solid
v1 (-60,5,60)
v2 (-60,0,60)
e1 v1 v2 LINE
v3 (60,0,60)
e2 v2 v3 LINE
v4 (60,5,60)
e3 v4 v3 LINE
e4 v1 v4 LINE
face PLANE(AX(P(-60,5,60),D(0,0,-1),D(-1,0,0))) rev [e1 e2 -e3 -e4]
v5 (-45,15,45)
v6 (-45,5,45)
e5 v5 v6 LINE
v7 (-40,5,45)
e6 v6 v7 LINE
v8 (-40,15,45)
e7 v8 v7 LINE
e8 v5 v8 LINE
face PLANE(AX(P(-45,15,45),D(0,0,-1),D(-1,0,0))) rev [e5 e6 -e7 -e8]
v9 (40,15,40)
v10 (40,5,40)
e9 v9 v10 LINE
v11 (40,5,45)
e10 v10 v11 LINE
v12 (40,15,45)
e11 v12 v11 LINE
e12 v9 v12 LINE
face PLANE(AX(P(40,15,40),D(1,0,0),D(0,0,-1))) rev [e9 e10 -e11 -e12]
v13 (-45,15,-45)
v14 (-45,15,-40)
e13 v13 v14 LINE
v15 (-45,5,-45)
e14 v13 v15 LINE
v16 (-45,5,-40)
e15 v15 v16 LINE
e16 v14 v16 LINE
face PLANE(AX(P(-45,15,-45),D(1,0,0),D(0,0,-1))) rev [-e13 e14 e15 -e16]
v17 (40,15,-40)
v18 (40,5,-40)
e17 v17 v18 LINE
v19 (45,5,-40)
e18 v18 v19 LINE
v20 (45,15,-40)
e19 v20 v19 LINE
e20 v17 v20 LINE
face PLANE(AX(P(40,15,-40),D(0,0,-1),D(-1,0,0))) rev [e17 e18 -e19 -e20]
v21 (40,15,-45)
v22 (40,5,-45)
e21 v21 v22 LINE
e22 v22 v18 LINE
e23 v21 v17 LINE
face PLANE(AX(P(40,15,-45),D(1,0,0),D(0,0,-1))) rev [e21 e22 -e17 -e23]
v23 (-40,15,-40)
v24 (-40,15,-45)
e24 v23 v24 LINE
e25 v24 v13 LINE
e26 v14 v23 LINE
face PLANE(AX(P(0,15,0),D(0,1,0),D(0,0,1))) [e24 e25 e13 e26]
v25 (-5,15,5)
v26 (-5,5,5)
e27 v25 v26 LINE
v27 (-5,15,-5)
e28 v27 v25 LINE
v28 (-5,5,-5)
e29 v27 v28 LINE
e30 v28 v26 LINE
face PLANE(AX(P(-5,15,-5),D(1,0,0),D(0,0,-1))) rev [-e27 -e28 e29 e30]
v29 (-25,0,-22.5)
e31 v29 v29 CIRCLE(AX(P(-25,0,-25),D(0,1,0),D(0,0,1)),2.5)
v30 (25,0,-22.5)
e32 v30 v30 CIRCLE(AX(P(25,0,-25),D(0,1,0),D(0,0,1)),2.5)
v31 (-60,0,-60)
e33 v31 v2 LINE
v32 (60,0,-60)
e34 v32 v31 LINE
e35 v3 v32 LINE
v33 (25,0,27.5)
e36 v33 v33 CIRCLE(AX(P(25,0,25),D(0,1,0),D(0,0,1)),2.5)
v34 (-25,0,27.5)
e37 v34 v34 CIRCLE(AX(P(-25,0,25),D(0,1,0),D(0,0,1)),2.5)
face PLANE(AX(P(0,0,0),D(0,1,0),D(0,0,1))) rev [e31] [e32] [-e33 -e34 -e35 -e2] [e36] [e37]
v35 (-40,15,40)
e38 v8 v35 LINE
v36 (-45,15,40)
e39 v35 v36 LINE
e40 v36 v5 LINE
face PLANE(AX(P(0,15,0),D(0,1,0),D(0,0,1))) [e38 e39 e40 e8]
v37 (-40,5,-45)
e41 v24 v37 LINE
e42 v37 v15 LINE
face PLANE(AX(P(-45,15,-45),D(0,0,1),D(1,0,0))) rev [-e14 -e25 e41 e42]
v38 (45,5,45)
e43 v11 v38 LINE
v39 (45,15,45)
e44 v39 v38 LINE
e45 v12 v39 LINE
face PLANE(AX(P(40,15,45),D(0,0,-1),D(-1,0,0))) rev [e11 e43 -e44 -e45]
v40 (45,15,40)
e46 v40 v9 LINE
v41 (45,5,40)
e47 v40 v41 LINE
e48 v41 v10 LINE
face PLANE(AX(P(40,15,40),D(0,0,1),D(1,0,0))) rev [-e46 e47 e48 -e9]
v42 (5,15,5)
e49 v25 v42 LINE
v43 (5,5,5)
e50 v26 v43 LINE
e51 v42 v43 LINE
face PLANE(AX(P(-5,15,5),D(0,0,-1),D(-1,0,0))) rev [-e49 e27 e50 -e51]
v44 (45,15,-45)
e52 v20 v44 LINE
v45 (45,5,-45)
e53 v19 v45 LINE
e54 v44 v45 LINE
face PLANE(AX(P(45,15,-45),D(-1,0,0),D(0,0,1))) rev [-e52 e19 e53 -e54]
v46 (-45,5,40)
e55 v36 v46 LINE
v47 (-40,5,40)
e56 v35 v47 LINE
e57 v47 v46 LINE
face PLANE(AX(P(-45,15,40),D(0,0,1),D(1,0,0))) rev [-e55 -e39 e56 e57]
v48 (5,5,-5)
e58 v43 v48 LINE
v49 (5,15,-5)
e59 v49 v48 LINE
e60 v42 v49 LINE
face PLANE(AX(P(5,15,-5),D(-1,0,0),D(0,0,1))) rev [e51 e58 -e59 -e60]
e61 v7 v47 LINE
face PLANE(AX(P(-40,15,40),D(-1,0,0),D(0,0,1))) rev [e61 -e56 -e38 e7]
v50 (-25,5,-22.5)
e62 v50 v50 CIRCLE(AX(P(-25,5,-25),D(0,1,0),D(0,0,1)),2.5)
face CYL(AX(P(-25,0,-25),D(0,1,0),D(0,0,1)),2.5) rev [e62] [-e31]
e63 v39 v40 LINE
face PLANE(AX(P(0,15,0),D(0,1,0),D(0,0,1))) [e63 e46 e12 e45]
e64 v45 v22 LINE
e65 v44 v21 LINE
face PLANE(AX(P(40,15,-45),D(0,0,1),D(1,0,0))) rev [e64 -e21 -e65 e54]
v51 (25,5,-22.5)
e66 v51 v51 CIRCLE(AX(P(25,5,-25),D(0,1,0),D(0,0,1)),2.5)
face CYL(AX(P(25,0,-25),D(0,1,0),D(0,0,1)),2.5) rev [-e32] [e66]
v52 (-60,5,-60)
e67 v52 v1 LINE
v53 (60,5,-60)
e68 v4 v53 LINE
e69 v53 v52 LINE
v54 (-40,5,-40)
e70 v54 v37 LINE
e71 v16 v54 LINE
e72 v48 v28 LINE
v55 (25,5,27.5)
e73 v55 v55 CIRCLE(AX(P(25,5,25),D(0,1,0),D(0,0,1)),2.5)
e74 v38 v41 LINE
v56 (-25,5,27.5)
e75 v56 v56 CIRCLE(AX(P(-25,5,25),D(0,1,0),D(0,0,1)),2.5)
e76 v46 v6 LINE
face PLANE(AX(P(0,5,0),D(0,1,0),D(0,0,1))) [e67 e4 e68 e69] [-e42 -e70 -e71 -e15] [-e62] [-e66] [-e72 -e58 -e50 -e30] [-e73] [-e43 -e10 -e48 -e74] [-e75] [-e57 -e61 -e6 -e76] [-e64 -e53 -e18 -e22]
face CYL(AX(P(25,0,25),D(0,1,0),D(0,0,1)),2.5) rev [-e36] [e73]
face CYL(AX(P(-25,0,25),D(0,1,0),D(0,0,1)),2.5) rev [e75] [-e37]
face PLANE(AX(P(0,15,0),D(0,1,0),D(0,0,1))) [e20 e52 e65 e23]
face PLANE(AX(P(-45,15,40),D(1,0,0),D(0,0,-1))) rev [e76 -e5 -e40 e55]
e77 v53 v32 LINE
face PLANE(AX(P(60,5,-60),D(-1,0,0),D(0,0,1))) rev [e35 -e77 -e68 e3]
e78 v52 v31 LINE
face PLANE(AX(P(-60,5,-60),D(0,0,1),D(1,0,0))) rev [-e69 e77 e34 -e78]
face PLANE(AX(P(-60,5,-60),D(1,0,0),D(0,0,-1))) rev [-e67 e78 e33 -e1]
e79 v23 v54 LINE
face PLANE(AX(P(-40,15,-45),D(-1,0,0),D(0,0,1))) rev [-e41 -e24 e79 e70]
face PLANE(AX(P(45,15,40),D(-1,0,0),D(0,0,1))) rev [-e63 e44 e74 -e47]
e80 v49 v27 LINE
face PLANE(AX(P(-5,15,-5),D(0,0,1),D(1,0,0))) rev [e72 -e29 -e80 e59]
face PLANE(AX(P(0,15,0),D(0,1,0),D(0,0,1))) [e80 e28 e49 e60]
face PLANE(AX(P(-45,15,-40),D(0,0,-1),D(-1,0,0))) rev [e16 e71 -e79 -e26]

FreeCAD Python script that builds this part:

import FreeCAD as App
import Part
import Sketcher
Q = App.Units.Quantity

doc = App.newDocument("Part")
body = doc.addObject("PartDesign::Body", "Body")

# Sketch on XZ plane
sketch1 = body.newObject("Sketcher::SketchObject", "Sketch")
sketch1.AttachmentSupport = (doc.getObject("XZ_Plane"), [""])
sketch1.MapMode = "FlatFace"
sketch1.addGeometry(Part.LineSegment(App.Vector(-60, -60, 0), App.Vector(-60, 60, 0)), False)
sketch1.addGeometry(Part.LineSegment(App.Vector(-60, 60, 0), App.Vector(60, 60, 0)), False)
sketch1.addGeometry(Part.LineSegment(App.Vector(60, 60, 0), App.Vector(60, -60, 0)), False)
sketch1.addGeometry(Part.LineSegment(App.Vector(60, -60, 0), App.Vector(-60, -60, 0)), False)
sketch1.addConstraint(Sketcher.Constraint("Coincident", 0, 2, 1, 1))
sketch1.addConstraint(Sketcher.Constraint("Coincident", 1, 2, 2, 1))
sketch1.addConstraint(Sketcher.Constraint("Coincident", 2, 2, 3, 1))
sketch1.addConstraint(Sketcher.Constraint("Coincident", 3, 2, 0, 1))
sketch1.addConstraint(Sketcher.Constraint("Vertical", 0))
sketch1.addConstraint(Sketcher.Constraint("Horizontal", 1))
sketch1.addConstraint(Sketcher.Constraint("Vertical", 2))
sketch1.addConstraint(Sketcher.Constraint("Horizontal", 3))
sketch1.addConstraint(Sketcher.Constraint("Symmetric", 0, 2, 2, 2, -1, 1))
sketch1.addConstraint(Sketcher.Constraint("Equal", 3, 0))
sketch1.addConstraint(Sketcher.Constraint("DistanceX", 1, 1, 1, 2, Q("120 mm")))
pad1 = body.newObject("PartDesign::Pad", "Pad")
pad1.Profile = sketch1
pad1.Length = 5
pad1.Reversed = True

# Sketch on XZ plane
sketch2 = body.newObject("Sketcher::SketchObject", "Sketch001")
sketch2.AttachmentSupport = (doc.getObject("XZ_Plane"), [""])
sketch2.MapMode = "FlatFace"
sketch2.AttachmentOffset = App.Placement(App.Vector(0, 0, -5), App.Rotation())
sketch2.addGeometry(Part.Circle(App.Vector(-25, -25, 0), App.Vector(0, 0, 1), 2.5), False)
sketch2.addConstraint(Sketcher.Constraint("Diameter", 0, Q("5 mm")))
sketch2.addConstraint(Sketcher.Constraint("DistanceX", 0, 3, -1, 1, Q("25 mm")))
sketch2.addConstraint(Sketcher.Constraint("DistanceY", 0, 3, -1, 1, Q("25 mm")))
pocket1 = body.newObject("PartDesign::Pocket", "Pocket")
pocket1.Profile = sketch2
pocket1.Length = 5
pocket1.Reversed = True

# Sketch on XZ plane
sketch3 = body.newObject("Sketcher::SketchObject", "Sketch002")
sketch3.AttachmentSupport = (doc.getObject("XZ_Plane"), [""])
sketch3.MapMode = "FlatFace"
sketch3.AttachmentOffset = App.Placement(App.Vector(0, 0, -5), App.Rotation())
sketch3.addGeometry(Part.Circle(App.Vector(25, -25, 0), App.Vector(0, 0, 1), 2.5), False)
sketch3.addConstraint(Sketcher.Constraint("Diameter", 0, Q("5 mm")))
sketch3.addConstraint(Sketcher.Constraint("DistanceX", -1, 1, 0, 3, Q("25 mm")))
sketch3.addConstraint(Sketcher.Constraint("DistanceY", 0, 3, -1, 1, Q("25 mm")))
pocket2 = body.newObject("PartDesign::Pocket", "Pocket001")
pocket2.Profile = sketch3
pocket2.Length = 5
pocket2.Reversed = True

# Sketch on XZ plane
sketch4 = body.newObject("Sketcher::SketchObject", "Sketch003")
sketch4.AttachmentSupport = (doc.getObject("XZ_Plane"), [""])
sketch4.MapMode = "FlatFace"
sketch4.AttachmentOffset = App.Placement(App.Vector(0, 0, -5), App.Rotation())
sketch4.addGeometry(Part.Circle(App.Vector(25, 25, 0), App.Vector(0, 0, 1), 2.5), False)
sketch4.addConstraint(Sketcher.Constraint("Diameter", 0, Q("5 mm")))
sketch4.addConstraint(Sketcher.Constraint("DistanceX", -1, 1, 0, 3, Q("25 mm")))
sketch4.addConstraint(Sketcher.Constraint("DistanceY", -1, 1, 0, 3, Q("25 mm")))
pocket3 = body.newObject("PartDesign::Pocket", "Pocket002")
pocket3.Profile = sketch4
pocket3.Length = 5
pocket3.Reversed = True

# Sketch on XZ plane
sketch5 = body.newObject("Sketcher::SketchObject", "Sketch004")
sketch5.AttachmentSupport = (doc.getObject("XZ_Plane"), [""])
sketch5.MapMode = "FlatFace"
sketch5.AttachmentOffset = App.Placement(App.Vector(0, 0, -5), App.Rotation())
sketch5.addGeometry(Part.Circle(App.Vector(-25, 25, 0), App.Vector(0, 0, 1), 2.5), False)
sketch5.addConstraint(Sketcher.Constraint("Diameter", 0, Q("5 mm")))
sketch5.addConstraint(Sketcher.Constraint("DistanceX", 0, 3, -1, 1, Q("25 mm")))
sketch5.addConstraint(Sketcher.Constraint("DistanceY", -1, 1, 0, 3, Q("25 mm")))
pocket4 = body.newObject("PartDesign::Pocket", "Pocket003")
pocket4.Profile = sketch5
pocket4.Length = 5
pocket4.Reversed = True

# Sketch on XZ plane
sketch6 = body.newObject("Sketcher::SketchObject", "Sketch005")
sketch6.AttachmentSupport = (doc.getObject("XZ_Plane"), [""])
sketch6.MapMode = "FlatFace"
sketch6.AttachmentOffset = App.Placement(App.Vector(0, 0, -5), App.Rotation())
sketch6.addGeometry(Part.LineSegment(App.Vector(-5, -5, 0), App.Vector(-5, 5, 0)), False)
sketch6.addGeometry(Part.LineSegment(App.Vector(-5, 5, 0), App.Vector(5, 5, 0)), False)
sketch6.addGeometry(Part.LineSegment(App.Vector(5, 5, 0), App.Vector(5, -5, 0)), False)
sketch6.addGeometry(Part.LineSegment(App.Vector(5, -5, 0), App.Vector(-5, -5, 0)), False)
sketch6.addConstraint(Sketcher.Constraint("Coincident", 0, 2, 1, 1))
sketch6.addConstraint(Sketcher.Constraint("Coincident", 1, 2, 2, 1))
sketch6.addConstraint(Sketcher.Constraint("Coincident", 2, 2, 3, 1))
sketch6.addConstraint(Sketcher.Constraint("Coincident", 3, 2, 0, 1))
sketch6.addConstraint(Sketcher.Constraint("Vertical", 0))
sketch6.addConstraint(Sketcher.Constraint("Horizontal", 1))
sketch6.addConstraint(Sketcher.Constraint("Vertical", 2))
sketch6.addConstraint(Sketcher.Constraint("Horizontal", 3))
sketch6.addConstraint(Sketcher.Constraint("Symmetric", 0, 2, 2, 2, -1, 1))
sketch6.addConstraint(Sketcher.Constraint("Equal", 3, 0))
sketch6.addConstraint(Sketcher.Constraint("DistanceX", 1, 1, 1, 2, Q("10 mm")))
pad2 = body.newObject("PartDesign::Pad", "Pad001")
pad2.Profile = sketch6
pad2.Length = 10
pad2.Reversed = True

# Sketch on XZ plane
sketch7 = body.newObject("Sketcher::SketchObject", "Sketch006")
sketch7.AttachmentSupport = (doc.getObject("XZ_Plane"), [""])
sketch7.MapMode = "FlatFace"
sketch7.AttachmentOffset = App.Placement(App.Vector(0, 0, -5), App.Rotation())
sketch7.addGeometry(Part.LineSegment(App.Vector(40, -45, 0), App.Vector(40, -40, 0)), False)
sketch7.addGeometry(Part.LineSegment(App.Vector(40, -40, 0), App.Vector(45, -40, 0)), False)
sketch7.addGeometry(Part.LineSegment(App.Vector(45, -40, 0), App.Vector(45, -45, 0)), False)
sketch7.addGeometry(Part.LineSegment(App.Vector(45, -45, 0), App.Vector(40, -45, 0)), False)
sketch7.addConstraint(Sketcher.Constraint("Coincident", 0, 2, 1, 1))
sketch7.addConstraint(Sketcher.Constraint("Coincident", 1, 2, 2, 1))
sketch7.addConstraint(Sketcher.Constraint("Coincident", 2, 2, 3, 1))
sketch7.addConstraint(Sketcher.Constraint("Coincident", 3, 2, 0, 1))
sketch7.addConstraint(Sketcher.Constraint("Vertical", 0))
sketch7.addConstraint(Sketcher.Constraint("Horizontal", 1))
sketch7.addConstraint(Sketcher.Constraint("Vertical", 2))
sketch7.addConstraint(Sketcher.Constraint("Horizontal", 3))
sketch7.addConstraint(Sketcher.Constraint("Equal", 3, 0))
sketch7.addConstraint(Sketcher.Constraint("DistanceX", 1, 1, 1, 2, Q("5 mm")))
sketch7.addConstraint(Sketcher.Constraint("DistanceX", -1, 1, 0, 2, Q("40 mm")))
sketch7.addConstraint(Sketcher.Constraint("DistanceY", 0, 2, -1, 1, Q("40 mm")))
pad3 = body.newObject("PartDesign::Pad", "Pad002")
pad3.Profile = sketch7
pad3.Length = 10
pad3.Reversed = True

# Sketch on XZ plane
sketch8 = body.newObject("Sketcher::SketchObject", "Sketch007")
sketch8.AttachmentSupport = (doc.getObject("XZ_Plane"), [""])
sketch8.MapMode = "FlatFace"
sketch8.AttachmentOffset = App.Placement(App.Vector(0, 0, -5), App.Rotation())
sketch8.addGeometry(Part.LineSegment(App.Vector(-45, -45, 0), App.Vector(-45, -40, 0)), False)
sketch8.addGeometry(Part.LineSegment(App.Vector(-45, -40, 0), App.Vector(-40, -40, 0)), False)
sketch8.addGeometry(Part.LineSegment(App.Vector(-40, -40, 0), App.Vector(-40, -45, 0)), False)
sketch8.addGeometry(Part.LineSegment(App.Vector(-40, -45, 0), App.Vector(-45, -45, 0)), False)
sketch8.addConstraint(Sketcher.Constraint("Coincident", 0, 2, 1, 1))
sketch8.addConstraint(Sketcher.Constraint("Coincident", 1, 2, 2, 1))
sketch8.addConstraint(Sketcher.Constraint("Coincident", 2, 2, 3, 1))
sketch8.addConstraint(Sketcher.Constraint("Coincident", 3, 2, 0, 1))
sketch8.addConstraint(Sketcher.Constraint("Vertical", 0))
sketch8.addConstraint(Sketcher.Constraint("Horizontal", 1))
sketch8.addConstraint(Sketcher.Constraint("Vertical", 2))
sketch8.addConstraint(Sketcher.Constraint("Horizontal", 3))
sketch8.addConstraint(Sketcher.Constraint("Equal", 3, 0))
sketch8.addConstraint(Sketcher.Constraint("DistanceX", 1, 1, 1, 2, Q("5 mm")))
sketch8.addConstraint(Sketcher.Constraint("DistanceX", 0, 2, -1, 1, Q("45 mm")))
sketch8.addConstraint(Sketcher.Constraint("DistanceY", 0, 2, -1, 1, Q("40 mm")))
pad4 = body.newObject("PartDesign::Pad", "Pad003")
pad4.Profile = sketch8
pad4.Length = 10
pad4.Reversed = True

# Sketch on XZ plane
sketch9 = body.newObject("Sketcher::SketchObject", "Sketch008")
sketch9.AttachmentSupport = (doc.getObject("XZ_Plane"), [""])
sketch9.MapMode = "FlatFace"
sketch9.AttachmentOffset = App.Placement(App.Vector(0, 0, -5), App.Rotation())
sketch9.addGeometry(Part.LineSegment(App.Vector(40, 40, 0), App.Vector(40, 45, 0)), False)
sketch9.addGeometry(Part.LineSegment(App.Vector(40, 45, 0), App.Vector(45, 45, 0)), False)
sketch9.addGeometry(Part.LineSegment(App.Vector(45, 45, 0), App.Vector(45, 40, 0)), False)
sketch9.addGeometry(Part.LineSegment(App.Vector(45, 40, 0), App.Vector(40, 40, 0)), False)
sketch9.addConstraint(Sketcher.Constraint("Coincident", 0, 2, 1, 1))
sketch9.addConstraint(Sketcher.Constraint("Coincident", 1, 2, 2, 1))
sketch9.addConstraint(Sketcher.Constraint("Coincident", 2, 2, 3, 1))
sketch9.addConstraint(Sketcher.Constraint("Coincident", 3, 2, 0, 1))
sketch9.addConstraint(Sketcher.Constraint("Vertical", 0))
sketch9.addConstraint(Sketcher.Constraint("Horizontal", 1))
sketch9.addConstraint(Sketcher.Constraint("Vertical", 2))
sketch9.addConstraint(Sketcher.Constraint("Horizontal", 3))
sketch9.addConstraint(Sketcher.Constraint("Equal", 3, 0))
sketch9.addConstraint(Sketcher.Constraint("DistanceX", 1, 1, 1, 2, Q("5 mm")))
sketch9.addConstraint(Sketcher.Constraint("DistanceX", -1, 1, 0, 2, Q("40 mm")))
sketch9.addConstraint(Sketcher.Constraint("DistanceY", -1, 1, 0, 2, Q("45 mm")))
pad5 = body.newObject("PartDesign::Pad", "Pad004")
pad5.Profile = sketch9
pad5.Length = 10
pad5.Reversed = True

# Sketch on XZ plane
sketch10 = body.newObject("Sketcher::SketchObject", "Sketch009")
sketch10.AttachmentSupport = (doc.getObject("XZ_Plane"), [""])
sketch10.MapMode = "FlatFace"
sketch10.AttachmentOffset = App.Placement(App.Vector(0, 0, -5), App.Rotation())
sketch10.addGeometry(Part.LineSegment(App.Vector(-45, 40, 0), App.Vector(-45, 45, 0)), False)
sketch10.addGeometry(Part.LineSegment(App.Vector(-45, 45, 0), App.Vector(-40, 45, 0)), False)
sketch10.addGeometry(Part.LineSegment(App.Vector(-40, 45, 0), App.Vector(-40, 40, 0)), False)
sketch10.addGeometry(Part.LineSegment(App.Vector(-40, 40, 0), App.Vector(-45, 40, 0)), False)
sketch10.addConstraint(Sketcher.Constraint("Coincident", 0, 2, 1, 1))
sketch10.addConstraint(Sketcher.Constraint("Coincident", 1, 2, 2, 1))
sketch10.addConstraint(Sketcher.Constraint("Coincident", 2, 2, 3, 1))
sketch10.addConstraint(Sketcher.Constraint("Coincident", 3, 2, 0, 1))
sketch10.addConstraint(Sketcher.Constraint("Vertical", 0))
sketch10.addConstraint(Sketcher.Constraint("Horizontal", 1))
sketch10.addConstraint(Sketcher.Constraint("Vertical", 2))
sketch10.addConstraint(Sketcher.Constraint("Horizontal", 3))
sketch10.addConstraint(Sketcher.Constraint("Equal", 3, 0))
sketch10.addConstraint(Sketcher.Constraint("DistanceX", 1, 1, 1, 2, Q("5 mm")))
sketch10.addConstraint(Sketcher.Constraint("DistanceX", 0, 2, -1, 1, Q("45 mm")))
sketch10.addConstraint(Sketcher.Constraint("DistanceY", -1, 1, 0, 2, Q("45 mm")))
pad6 = body.newObject("PartDesign::Pad", "Pad005")
pad6.Profile = sketch10
pad6.Length = 10
pad6.Reversed = True

doc.recompute()
